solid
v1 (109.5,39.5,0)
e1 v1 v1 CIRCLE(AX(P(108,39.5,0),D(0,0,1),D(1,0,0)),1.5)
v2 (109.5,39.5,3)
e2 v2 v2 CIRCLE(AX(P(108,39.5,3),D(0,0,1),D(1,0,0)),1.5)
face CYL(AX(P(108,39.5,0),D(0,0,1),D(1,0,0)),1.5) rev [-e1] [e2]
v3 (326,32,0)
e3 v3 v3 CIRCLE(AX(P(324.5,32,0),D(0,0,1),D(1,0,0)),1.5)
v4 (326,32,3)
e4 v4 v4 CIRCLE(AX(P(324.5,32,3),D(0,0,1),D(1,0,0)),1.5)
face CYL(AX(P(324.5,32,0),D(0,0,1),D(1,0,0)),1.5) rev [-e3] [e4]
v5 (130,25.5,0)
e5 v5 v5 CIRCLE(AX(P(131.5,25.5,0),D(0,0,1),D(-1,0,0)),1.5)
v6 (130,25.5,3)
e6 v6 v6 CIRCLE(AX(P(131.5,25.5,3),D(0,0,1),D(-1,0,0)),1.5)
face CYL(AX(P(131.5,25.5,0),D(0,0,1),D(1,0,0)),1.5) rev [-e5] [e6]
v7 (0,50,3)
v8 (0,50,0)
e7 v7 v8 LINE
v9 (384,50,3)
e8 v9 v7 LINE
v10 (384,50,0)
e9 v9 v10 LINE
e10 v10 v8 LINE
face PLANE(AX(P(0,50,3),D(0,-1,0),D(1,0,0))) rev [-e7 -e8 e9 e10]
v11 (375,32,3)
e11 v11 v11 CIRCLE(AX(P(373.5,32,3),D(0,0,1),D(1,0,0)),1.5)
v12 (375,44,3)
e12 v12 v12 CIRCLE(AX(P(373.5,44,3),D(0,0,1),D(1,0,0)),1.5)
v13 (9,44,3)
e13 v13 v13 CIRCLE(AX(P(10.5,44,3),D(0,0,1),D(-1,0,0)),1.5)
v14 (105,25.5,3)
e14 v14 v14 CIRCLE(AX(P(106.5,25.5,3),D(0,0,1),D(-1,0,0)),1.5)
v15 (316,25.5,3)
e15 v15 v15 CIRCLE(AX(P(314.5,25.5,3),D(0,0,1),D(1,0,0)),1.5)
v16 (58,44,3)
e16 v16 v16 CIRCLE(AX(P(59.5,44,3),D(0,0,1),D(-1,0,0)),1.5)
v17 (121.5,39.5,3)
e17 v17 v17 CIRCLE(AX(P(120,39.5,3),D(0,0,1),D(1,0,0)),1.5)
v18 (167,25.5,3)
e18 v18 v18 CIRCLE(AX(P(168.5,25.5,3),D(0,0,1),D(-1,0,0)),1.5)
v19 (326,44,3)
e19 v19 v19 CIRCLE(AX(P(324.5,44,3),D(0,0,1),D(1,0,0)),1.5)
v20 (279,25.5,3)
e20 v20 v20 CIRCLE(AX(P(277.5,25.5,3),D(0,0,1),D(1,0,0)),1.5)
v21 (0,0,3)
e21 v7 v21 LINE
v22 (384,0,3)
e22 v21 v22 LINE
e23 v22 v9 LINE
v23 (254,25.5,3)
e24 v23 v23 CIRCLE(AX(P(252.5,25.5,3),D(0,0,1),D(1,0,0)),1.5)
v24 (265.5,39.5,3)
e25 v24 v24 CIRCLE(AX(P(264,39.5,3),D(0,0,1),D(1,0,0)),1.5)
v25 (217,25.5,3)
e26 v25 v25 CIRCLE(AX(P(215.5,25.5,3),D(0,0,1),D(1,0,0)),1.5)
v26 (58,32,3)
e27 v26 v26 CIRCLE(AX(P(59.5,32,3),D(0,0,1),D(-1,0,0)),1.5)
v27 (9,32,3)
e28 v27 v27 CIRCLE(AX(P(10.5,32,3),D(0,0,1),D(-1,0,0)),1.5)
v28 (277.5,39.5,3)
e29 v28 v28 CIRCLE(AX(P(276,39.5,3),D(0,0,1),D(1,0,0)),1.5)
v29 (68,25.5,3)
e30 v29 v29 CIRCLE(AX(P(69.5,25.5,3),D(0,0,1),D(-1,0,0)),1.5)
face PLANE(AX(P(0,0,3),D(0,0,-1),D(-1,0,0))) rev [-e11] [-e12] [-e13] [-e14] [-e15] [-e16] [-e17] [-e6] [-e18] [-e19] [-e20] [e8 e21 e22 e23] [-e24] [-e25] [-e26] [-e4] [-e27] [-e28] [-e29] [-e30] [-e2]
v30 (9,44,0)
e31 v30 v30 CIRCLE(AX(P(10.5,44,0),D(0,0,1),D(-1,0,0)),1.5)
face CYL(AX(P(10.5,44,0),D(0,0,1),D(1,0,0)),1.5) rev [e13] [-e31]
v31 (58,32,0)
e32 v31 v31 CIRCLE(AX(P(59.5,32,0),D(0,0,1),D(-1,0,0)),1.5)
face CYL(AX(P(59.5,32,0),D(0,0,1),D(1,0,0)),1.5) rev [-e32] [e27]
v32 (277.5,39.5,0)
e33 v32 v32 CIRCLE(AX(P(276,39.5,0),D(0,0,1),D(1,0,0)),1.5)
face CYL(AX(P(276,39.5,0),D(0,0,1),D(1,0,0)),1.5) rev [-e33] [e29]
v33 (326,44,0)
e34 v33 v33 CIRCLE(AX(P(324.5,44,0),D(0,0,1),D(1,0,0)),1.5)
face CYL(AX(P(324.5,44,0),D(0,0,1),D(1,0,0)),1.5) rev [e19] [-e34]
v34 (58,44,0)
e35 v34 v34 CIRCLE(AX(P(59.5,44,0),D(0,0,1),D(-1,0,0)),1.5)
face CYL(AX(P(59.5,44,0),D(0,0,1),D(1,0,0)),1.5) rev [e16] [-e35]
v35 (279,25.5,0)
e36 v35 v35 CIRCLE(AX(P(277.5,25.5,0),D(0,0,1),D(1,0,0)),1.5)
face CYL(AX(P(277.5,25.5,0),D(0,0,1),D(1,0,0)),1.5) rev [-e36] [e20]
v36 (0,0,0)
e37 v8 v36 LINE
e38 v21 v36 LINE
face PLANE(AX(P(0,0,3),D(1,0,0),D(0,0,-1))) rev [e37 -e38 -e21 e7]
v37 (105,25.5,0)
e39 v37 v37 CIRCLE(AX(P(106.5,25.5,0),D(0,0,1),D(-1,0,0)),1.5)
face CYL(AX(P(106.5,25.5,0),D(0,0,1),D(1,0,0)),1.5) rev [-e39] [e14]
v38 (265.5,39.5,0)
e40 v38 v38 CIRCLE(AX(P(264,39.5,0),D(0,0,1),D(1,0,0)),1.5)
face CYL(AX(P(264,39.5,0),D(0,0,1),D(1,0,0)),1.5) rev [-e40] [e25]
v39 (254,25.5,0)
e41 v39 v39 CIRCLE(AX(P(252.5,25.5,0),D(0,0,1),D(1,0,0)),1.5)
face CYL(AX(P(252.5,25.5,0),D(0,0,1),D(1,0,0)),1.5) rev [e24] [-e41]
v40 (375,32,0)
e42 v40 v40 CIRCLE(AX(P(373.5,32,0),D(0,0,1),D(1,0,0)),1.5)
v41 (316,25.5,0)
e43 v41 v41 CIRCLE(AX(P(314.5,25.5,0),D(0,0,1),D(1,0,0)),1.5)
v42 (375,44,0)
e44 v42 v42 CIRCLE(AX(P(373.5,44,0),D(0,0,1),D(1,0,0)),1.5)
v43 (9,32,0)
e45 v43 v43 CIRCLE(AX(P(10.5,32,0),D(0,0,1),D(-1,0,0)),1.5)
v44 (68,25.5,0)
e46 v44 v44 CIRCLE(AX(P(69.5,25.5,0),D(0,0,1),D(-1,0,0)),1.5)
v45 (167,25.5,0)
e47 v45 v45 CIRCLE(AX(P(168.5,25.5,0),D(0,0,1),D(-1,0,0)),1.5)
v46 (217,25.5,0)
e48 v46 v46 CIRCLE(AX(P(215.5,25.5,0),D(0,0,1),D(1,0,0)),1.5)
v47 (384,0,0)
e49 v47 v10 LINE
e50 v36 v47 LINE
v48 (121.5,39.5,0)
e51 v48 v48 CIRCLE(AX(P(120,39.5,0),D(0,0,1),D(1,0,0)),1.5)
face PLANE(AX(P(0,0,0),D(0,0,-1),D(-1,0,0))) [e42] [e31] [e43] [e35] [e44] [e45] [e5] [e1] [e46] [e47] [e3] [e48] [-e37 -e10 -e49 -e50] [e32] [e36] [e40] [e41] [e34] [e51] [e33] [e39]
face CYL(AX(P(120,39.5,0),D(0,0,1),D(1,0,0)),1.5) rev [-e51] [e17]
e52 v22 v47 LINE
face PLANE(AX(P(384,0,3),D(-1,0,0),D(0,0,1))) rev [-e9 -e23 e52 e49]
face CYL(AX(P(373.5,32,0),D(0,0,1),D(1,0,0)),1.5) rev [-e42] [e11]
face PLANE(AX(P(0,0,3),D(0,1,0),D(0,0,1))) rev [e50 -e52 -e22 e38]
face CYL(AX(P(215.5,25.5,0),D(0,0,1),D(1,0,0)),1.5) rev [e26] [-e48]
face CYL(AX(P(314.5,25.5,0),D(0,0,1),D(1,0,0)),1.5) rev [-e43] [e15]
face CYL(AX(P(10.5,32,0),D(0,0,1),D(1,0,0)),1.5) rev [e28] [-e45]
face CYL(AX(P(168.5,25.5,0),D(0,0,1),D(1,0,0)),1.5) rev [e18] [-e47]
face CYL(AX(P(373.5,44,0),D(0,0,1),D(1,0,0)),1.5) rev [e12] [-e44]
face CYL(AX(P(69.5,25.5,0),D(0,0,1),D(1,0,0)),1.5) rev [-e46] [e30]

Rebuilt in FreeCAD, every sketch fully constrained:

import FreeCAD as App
import Part
import Sketcher
Q = App.Units.Quantity

doc = App.newDocument("Part")
body = doc.addObject("PartDesign::Body", "Body")

sketch1 = body.newObject("Sketcher::SketchObject", "Sketch")
sketch1.AttachmentSupport = (doc.getObject("XY_Plane"), [""])
sketch1.MapMode = "FlatFace"
sketch1.addGeometry([
    Part.LineSegment(App.Vector(0, 50, 0), App.Vector(0, 0, 0)),
    Part.LineSegment(App.Vector(0, 0, 0), App.Vector(384, 0, 0)),
    Part.LineSegment(App.Vector(384, 0, 0), App.Vector(384, 50, 0)),
    Part.LineSegment(App.Vector(384, 50, 0), App.Vector(0, 50, 0)),
], False)
sketch1.addConstraint([
    Sketcher.Constraint("Coincident", 0, 2, 1, 1),
    Sketcher.Constraint("Coincident", 1, 2, 2, 1),
    Sketcher.Constraint("Coincident", 2, 2, 3, 1),
    Sketcher.Constraint("Coincident", 3, 2, 0, 1),
    Sketcher.Constraint("Vertical", 0),
    Sketcher.Constraint("Horizontal", 1),
    Sketcher.Constraint("Vertical", 2),
    Sketcher.Constraint("Horizontal", 3),
    Sketcher.Constraint("Coincident", 0, 2, -1, 1),
    Sketcher.Constraint("DistanceX", 1, 1, 1, 2, Q("384 mm")),
    Sketcher.Constraint("DistanceY", 0, 2, 0, 1, Q("50 mm")),
])
pad1 = body.newObject("PartDesign::Pad", "Pad")
pad1.Profile = sketch1
pad1.Length = 3

sketch2 = body.newObject("Sketcher::SketchObject", "Sketch001")
sketch2.AttachmentSupport = (doc.getObject("XY_Plane"), [""])
sketch2.MapMode = "FlatFace"
sketch2.AttachmentOffset = App.Placement(App.Vector(0, 0, 3), App.Rotation())
sketch2.addGeometry([
    Part.Circle(App.Vector(264, 39.5, 0), App.Vector(0, 0, 1), 1.5),
    Part.Circle(App.Vector(276, 39.5, 0), App.Vector(0, 0, 1), 1.5),
    Part.Circle(App.Vector(120, 39.5, 0), App.Vector(0, 0, 1), 1.5),
    Part.Circle(App.Vector(108, 39.5, 0), App.Vector(0, 0, 1), 1.5),
    Part.Circle(App.Vector(215.5, 25.5, 0), App.Vector(0, 0, 1), 1.5),
    Part.Circle(App.Vector(252.5, 25.5, 0), App.Vector(0, 0, 1), 1.5),
    Part.Circle(App.Vector(277.5, 25.5, 0), App.Vector(0, 0, 1), 1.5),
    Part.Circle(App.Vector(314.5, 25.5, 0), App.Vector(0, 0, 1), 1.5),
    Part.Circle(App.Vector(69.5, 25.5, 0), App.Vector(0, 0, 1), 1.5),
    Part.Circle(App.Vector(106.5, 25.5, 0), App.Vector(0, 0, 1), 1.5),
    Part.Circle(App.Vector(131.5, 25.5, 0), App.Vector(0, 0, 1), 1.5),
    Part.Circle(App.Vector(168.5, 25.5, 0), App.Vector(0, 0, 1), 1.5),
    Part.Circle(App.Vector(373.5, 44, 0), App.Vector(0, 0, 1), 1.5),
    Part.Circle(App.Vector(373.5, 32, 0), App.Vector(0, 0, 1), 1.5),
    Part.Circle(App.Vector(324.5, 44, 0), App.Vector(0, 0, 1), 1.5),
    Part.Circle(App.Vector(324.5, 32, 0), App.Vector(0, 0, 1), 1.5),
    Part.Circle(App.Vector(59.5, 44, 0), App.Vector(0, 0, 1), 1.5),
    Part.Circle(App.Vector(10.5, 44, 0), App.Vector(0, 0, 1), 1.5),
    Part.Circle(App.Vector(10.5, 32, 0), App.Vector(0, 0, 1), 1.5),
    Part.Circle(App.Vector(59.5, 32, 0), App.Vector(0, 0, 1), 1.5),
], False)
sketch2.addConstraint([
    Sketcher.Constraint("Equal", 0, 1),
    Sketcher.Constraint("Equal", 1, 2),
    Sketcher.Constraint("Equal", 2, 3),
    Sketcher.Constraint("Equal", 3, 4),
    Sketcher.Constraint("Equal", 4, 5),
    Sketcher.Constraint("Equal", 5, 6),
    Sketcher.Constraint("Equal", 6, 7),
    Sketcher.Constraint("Equal", 7, 8),
    Sketcher.Constraint("Equal", 8, 9),
    Sketcher.Constraint("Equal", 9, 10),
    Sketcher.Constraint("Equal", 10, 11),
    Sketcher.Constraint("Equal", 11, 12),
    Sketcher.Constraint("Equal", 12, 13),
    Sketcher.Constraint("Equal", 13, 14),
    Sketcher.Constraint("Equal", 14, 15),
    Sketcher.Constraint("Equal", 15, 16),
    Sketcher.Constraint("Equal", 16, 17),
    Sketcher.Constraint("Equal", 17, 18),
    Sketcher.Constraint("Equal", 18, 19),
    Sketcher.Constraint("Horizontal", 0, 3, 1, 3),
    Sketcher.Constraint("Horizontal", 1, 3, 2, 3),
    Sketcher.Constraint("Horizontal", 2, 3, 3, 3),
    Sketcher.Constraint("Horizontal", 4, 3, 5, 3),
    Sketcher.Constraint("Horizontal", 5, 3, 6, 3),
    Sketcher.Constraint("Horizontal", 6, 3, 7, 3),
    Sketcher.Constraint("Horizontal", 7, 3, 8, 3),
    Sketcher.Constraint("Horizontal", 8, 3, 9, 3),
    Sketcher.Constraint("Horizontal", 9, 3, 10, 3),
    Sketcher.Constraint("Horizontal", 10, 3, 11, 3),
    Sketcher.Constraint("Horizontal", 12, 3, 14, 3),
    Sketcher.Constraint("Horizontal", 13, 3, 15, 3),
    Sketcher.Constraint("Horizontal", 14, 3, 16, 3),
    Sketcher.Constraint("Horizontal", 16, 3, 17, 3),
    Sketcher.Constraint("Horizontal", 15, 3, 18, 3),
    Sketcher.Constraint("Horizontal", 18, 3, 19, 3),
    Sketcher.Constraint("Vertical", 12, 3, 13, 3),
    Sketcher.Constraint("Vertical", 14, 3, 15, 3),
    Sketcher.Constraint("Vertical", 17, 3, 18, 3),
    Sketcher.Constraint("Vertical", 16, 3, 19, 3),
    Sketcher.Constraint("Diameter", 0, Q("3 mm")),
    Sketcher.Constraint("DistanceX", -1, 1, 0, 3, Q("264 mm")),
    Sketcher.Constraint("DistanceX", -1, 1, 1, 3, Q("276 mm")),
    Sketcher.Constraint("DistanceX", -1, 1, 2, 3, Q("120 mm")),
    Sketcher.Constraint("DistanceX", -1, 1, 3, 3, Q("108 mm")),
    Sketcher.Constraint("DistanceY", -1, 1, 12, 3, Q("44 mm")),
    Sketcher.Constraint("DistanceY", -1, 1, 13, 3, Q("32 mm")),
    Sketcher.Constraint("DistanceY", 4, 3, 0, 3, Q("14 mm")),
    Sketcher.Constraint("DistanceX", 4, 3, 5, 3, Q("37 mm")),
    Sketcher.Constraint("DistanceX", 5, 3, 6, 3, Q("25 mm")),
    Sketcher.Constraint("DistanceX", 6, 3, 7, 3, Q("37 mm")),
    Sketcher.Constraint("DistanceX", 8, 3, 4, 3, Q("146 mm")),
    Sketcher.Constraint("DistanceX", 8, 3, 9, 3, Q("37 mm")),
    Sketcher.Constraint("DistanceX", 9, 3, 10, 3, Q("25 mm")),
    Sketcher.Constraint("DistanceX", 10, 3, 11, 3, Q("37 mm")),
    Sketcher.Constraint("DistanceX", 7, 3, 12, 3, Q("59 mm")),
    Sketcher.Constraint("DistanceX", 7, 3, 14, 3, Q("10 mm")),
    Sketcher.Constraint("DistanceX", 16, 3, 8, 3, Q("10 mm")),
    Sketcher.Constraint("DistanceX", 17, 3, 16, 3, Q("49 mm")),
    Sketcher.Constraint("DistanceY", -1, 1, 0, 3, Q("39.5 mm")),
    Sketcher.Constraint("DistanceX", -1, 1, 4, 3, Q("215.5 mm")),
])
pocket1 = body.newObject("PartDesign::Pocket", "Pocket")
pocket1.Profile = sketch2
pocket1.Type = "ThroughAll"

doc.recompute()
